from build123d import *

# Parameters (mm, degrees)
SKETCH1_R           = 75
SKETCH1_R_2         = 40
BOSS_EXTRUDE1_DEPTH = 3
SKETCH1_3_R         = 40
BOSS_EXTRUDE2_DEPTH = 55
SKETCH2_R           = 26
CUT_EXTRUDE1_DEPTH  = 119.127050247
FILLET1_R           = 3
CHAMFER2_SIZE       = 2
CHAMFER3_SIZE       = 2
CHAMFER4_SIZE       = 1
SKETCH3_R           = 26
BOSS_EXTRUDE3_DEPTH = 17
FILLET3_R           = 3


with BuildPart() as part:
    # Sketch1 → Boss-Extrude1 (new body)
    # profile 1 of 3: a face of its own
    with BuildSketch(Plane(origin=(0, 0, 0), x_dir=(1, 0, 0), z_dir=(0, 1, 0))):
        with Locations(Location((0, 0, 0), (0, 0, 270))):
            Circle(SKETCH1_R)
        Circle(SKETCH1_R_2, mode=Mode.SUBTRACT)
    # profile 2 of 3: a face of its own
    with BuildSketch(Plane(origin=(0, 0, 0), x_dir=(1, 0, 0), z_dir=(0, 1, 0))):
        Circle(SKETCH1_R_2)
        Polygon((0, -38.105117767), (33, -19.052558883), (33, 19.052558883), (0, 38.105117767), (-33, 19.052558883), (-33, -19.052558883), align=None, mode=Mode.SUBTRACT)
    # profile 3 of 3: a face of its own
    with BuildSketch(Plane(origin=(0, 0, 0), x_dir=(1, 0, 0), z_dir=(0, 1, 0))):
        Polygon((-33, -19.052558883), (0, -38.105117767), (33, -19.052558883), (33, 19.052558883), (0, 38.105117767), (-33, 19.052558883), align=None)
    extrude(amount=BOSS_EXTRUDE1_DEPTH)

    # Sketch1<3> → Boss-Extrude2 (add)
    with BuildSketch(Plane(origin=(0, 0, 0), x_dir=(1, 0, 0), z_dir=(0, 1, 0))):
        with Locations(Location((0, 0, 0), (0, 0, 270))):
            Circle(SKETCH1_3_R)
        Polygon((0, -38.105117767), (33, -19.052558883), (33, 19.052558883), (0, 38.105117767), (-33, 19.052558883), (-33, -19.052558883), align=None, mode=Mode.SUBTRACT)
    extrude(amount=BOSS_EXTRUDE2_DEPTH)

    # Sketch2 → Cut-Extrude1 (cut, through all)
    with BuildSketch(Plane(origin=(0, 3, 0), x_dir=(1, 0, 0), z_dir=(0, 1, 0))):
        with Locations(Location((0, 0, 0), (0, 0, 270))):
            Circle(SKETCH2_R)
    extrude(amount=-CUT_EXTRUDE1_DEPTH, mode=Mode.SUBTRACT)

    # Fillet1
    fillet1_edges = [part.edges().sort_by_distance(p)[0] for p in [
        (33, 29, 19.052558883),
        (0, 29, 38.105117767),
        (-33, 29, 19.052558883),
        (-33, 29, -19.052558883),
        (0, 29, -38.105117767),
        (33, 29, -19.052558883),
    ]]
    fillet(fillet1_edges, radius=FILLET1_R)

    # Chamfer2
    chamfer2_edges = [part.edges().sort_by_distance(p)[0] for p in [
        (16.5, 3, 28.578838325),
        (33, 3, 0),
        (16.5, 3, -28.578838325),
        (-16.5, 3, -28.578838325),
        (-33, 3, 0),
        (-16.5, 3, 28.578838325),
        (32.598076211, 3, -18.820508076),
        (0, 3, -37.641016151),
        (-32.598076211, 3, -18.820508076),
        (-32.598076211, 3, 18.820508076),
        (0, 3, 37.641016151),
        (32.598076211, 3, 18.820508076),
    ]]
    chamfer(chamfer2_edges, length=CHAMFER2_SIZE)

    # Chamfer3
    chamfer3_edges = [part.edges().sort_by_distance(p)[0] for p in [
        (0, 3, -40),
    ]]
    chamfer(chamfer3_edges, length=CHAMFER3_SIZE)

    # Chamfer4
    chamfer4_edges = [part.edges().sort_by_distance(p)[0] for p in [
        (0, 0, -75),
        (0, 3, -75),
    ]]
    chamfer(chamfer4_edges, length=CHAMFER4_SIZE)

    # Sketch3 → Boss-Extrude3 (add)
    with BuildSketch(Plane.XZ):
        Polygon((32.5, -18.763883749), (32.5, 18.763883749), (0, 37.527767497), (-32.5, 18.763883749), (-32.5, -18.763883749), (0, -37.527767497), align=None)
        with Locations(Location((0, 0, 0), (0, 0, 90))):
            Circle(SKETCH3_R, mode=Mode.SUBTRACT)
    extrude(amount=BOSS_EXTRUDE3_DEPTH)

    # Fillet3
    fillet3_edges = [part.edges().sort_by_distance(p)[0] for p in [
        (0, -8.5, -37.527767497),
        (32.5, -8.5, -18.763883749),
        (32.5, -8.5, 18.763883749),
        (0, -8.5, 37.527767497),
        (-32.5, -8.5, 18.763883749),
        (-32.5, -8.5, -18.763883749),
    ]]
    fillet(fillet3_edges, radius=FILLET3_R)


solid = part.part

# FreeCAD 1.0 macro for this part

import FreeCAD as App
import Part
import Sketcher
Q = App.Units.Quantity


def edges_at(feature, points):
    """Names of the edges that pass closest to the given points."""
    edges = feature.Shape.Edges
    near = lambda p: min(range(len(edges)), key=lambda i: edges[i].distToShape(Part.Vertex(*p))[0])
    return sorted({f"Edge{near(p) + 1}" for p in points})

doc = App.newDocument("Part")
params = doc.addObject("Spreadsheet::Sheet", "Params")
for row, (alias, value) in enumerate([
    ("sketch1_diameter", "150 mm"),
    ("pad1_length", "3 mm"),
    ("sketch2_diameter", "80 mm"),
    ("pad2_length", "55 mm"),
    ("sketch3_diameter", "52 mm"),
    ("fillet_radius", "3 mm"),
    ("chamfer_size", "2 mm"),
    ("chamfer2_size", "2 mm"),
    ("chamfer3_size", "1 mm"),
    ("sketch4_diameter", "52 mm"),
    ("pad3_length", "17 mm"),
    ("fillet2_radius", "3 mm"),
], start=1):
    params.set(f"A{row}", alias)
    params.set(f"B{row}", "=" + value)
    params.setAlias(f"B{row}", alias)

body = doc.addObject("PartDesign::Body", "Body")

# Sketch on XZ plane
sketch1 = doc.addObject("Sketcher::SketchObject", "Sketch")
body.addObject(sketch1)
sketch1.AttachmentSupport = (doc.XZ_Plane, [""])
sketch1.MapMode = "FlatFace"
sketch1.addGeometry(Part.Circle(App.Vector(0, 0, 0), App.Vector(0, 0, 1), 75), False)
sketch1.addConstraint([
    Sketcher.Constraint("Coincident", 0, 3, -1, 1),
    Sketcher.Constraint("Diameter", 0, Q("150 mm")),
])
sketch1.setExpression("Constraints[1]", "Params.sketch1_diameter")
pad1 = doc.addObject("PartDesign::Pad", "Pad")
body.addObject(pad1)
pad1.Profile = sketch1
pad1.setExpression("Length", "Params.pad1_length")
pad1.Reversed = True

# Sketch on XZ plane
sketch2 = doc.addObject("Sketcher::SketchObject", "Sketch001")
body.addObject(sketch2)
sketch2.AttachmentSupport = (doc.XZ_Plane, [""])
sketch2.MapMode = "FlatFace"
sketch2.addGeometry([
    Part.Circle(App.Vector(0, 0, 0), App.Vector(0, 0, 1), 40),  # 0
    Part.LineSegment(App.Vector(33, 19, 0), App.Vector(0, 38, 0)),  # 1
    Part.LineSegment(App.Vector(0, 38, 0), App.Vector(-33, 19, 0)),  # 2
    Part.LineSegment(App.Vector(-33, 19, 0), App.Vector(-33, -19, 0)),  # 3
    Part.LineSegment(App.Vector(-33, -19, 0), App.Vector(0, -38, 0)),  # 4
    Part.LineSegment(App.Vector(0, -38, 0), App.Vector(33, -19, 0)),  # 5
    Part.LineSegment(App.Vector(33, -19, 0), App.Vector(33, 19, 0)),  # 6
], False)
sketch2.addConstraint([
    Sketcher.Constraint("Coincident", 1, 2, 2, 1),
    Sketcher.Constraint("Coincident", 2, 2, 3, 1),
    Sketcher.Constraint("Coincident", 3, 2, 4, 1),
    Sketcher.Constraint("Coincident", 4, 2, 5, 1),
    Sketcher.Constraint("Coincident", 5, 2, 6, 1),
    Sketcher.Constraint("Coincident", 6, 2, 1, 1),
    Sketcher.Constraint("Vertical", 3),
    Sketcher.Constraint("Vertical", 6),
    Sketcher.Constraint("Coincident", 0, 3, -1, 1),
    Sketcher.Constraint("Symmetric", 1, 2, 4, 2, -1, 1),
    Sketcher.Constraint("Symmetric", 2, 2, 5, 2, -1, 1),
    Sketcher.Constraint("PointOnObject", 1, 2, -2),
    Sketcher.Constraint("Parallel", 1, 4),
    Sketcher.Constraint("Horizontal", 3, 2, 5, 2),
    Sketcher.Constraint("Diameter", 0, Q("80 mm")),
    Sketcher.Constraint("Angle", 1, Q("150 deg")),
    Sketcher.Constraint("DistanceX", 2, 2, -1, 1, Q("33 mm")),
    Sketcher.Constraint("DistanceY", 3, 2, 3, 1, Q("38.105118 mm")),
])
sketch2.setExpression("Constraints[14]", "Params.sketch2_diameter")
pad2 = doc.addObject("PartDesign::Pad", "Pad001")
body.addObject(pad2)
pad2.Profile = sketch2
pad2.setExpression("Length", "Params.pad2_length")
pad2.Reversed = True

# Sketch on XZ plane
sketch3 = doc.addObject("Sketcher::SketchObject", "Sketch002")
body.addObject(sketch3)
sketch3.AttachmentSupport = (doc.XZ_Plane, [""])
sketch3.MapMode = "FlatFace"
sketch3.AttachmentOffset = App.Placement(App.Vector(0, 0, -3), App.Rotation())
sketch3.addGeometry(Part.Circle(App.Vector(0, 0, 0), App.Vector(0, 0, 1), 26), False)
sketch3.addConstraint([
    Sketcher.Constraint("Coincident", 0, 3, -1, 1),
    Sketcher.Constraint("Diameter", 0, Q("52 mm")),
])
sketch3.setExpression("Constraints[1]", "Params.sketch3_diameter")
pocket1 = doc.addObject("PartDesign::Pocket", "Pocket")
body.addObject(pocket1)
pocket1.Profile = sketch3
pocket1.Type = "ThroughAll"
pocket1.Reversed = True
doc.recompute()

fillet = doc.addObject("PartDesign::Fillet", "Fillet")
body.addObject(fillet)
fillet.Base = (pocket1, edges_at(pocket1, [
    (33, 29, 19.053),
    (0, 29, 38.105),
    (-33, 29, 19.053),
    (-33, 29, -19.053),
    (0, 29, -38.105),
    (33, 29, -19.053),
]))
fillet.setExpression("Radius", "Params.fillet_radius")
doc.recompute()

chamfer = doc.addObject("PartDesign::Chamfer", "Chamfer")
body.addObject(chamfer)
chamfer.Base = (fillet, edges_at(fillet, [
    (16.5, 3, 28.579),
    (33, 3, 0),
    (16.5, 3, -28.579),
    (-16.5, 3, -28.579),
    (-33, 3, 0),
    (-16.5, 3, 28.579),
    (32.598, 3, -18.821),
    (0, 3, -37.641),
    (-32.598, 3, -18.821),
    (-32.598, 3, 18.821),
    (0, 3, 37.641),
    (32.598, 3, 18.821),
]))
chamfer.setExpression("Size", "Params.chamfer_size")
doc.recompute()

chamfer2 = doc.addObject("PartDesign::Chamfer", "Chamfer001")
body.addObject(chamfer2)
chamfer2.Base = (chamfer, edges_at(chamfer, [(0, 3, -40)]))
chamfer2.setExpression("Size", "Params.chamfer2_size")
doc.recompute()

chamfer3 = doc.addObject("PartDesign::Chamfer", "Chamfer002")
body.addObject(chamfer3)
chamfer3.Base = (chamfer2, edges_at(chamfer2, [(0, 0, -75), (0, 3, -75)]))
chamfer3.setExpression("Size", "Params.chamfer3_size")

# Sketch on XZ plane
sketch4 = doc.addObject("Sketcher::SketchObject", "Sketch003")
body.addObject(sketch4)
sketch4.AttachmentSupport = (doc.XZ_Plane, [""])
sketch4.MapMode = "FlatFace"
sketch4.addGeometry([
    Part.LineSegment(App.Vector(32, -19, 0), App.Vector(32, 19, 0)),  # 0
    Part.LineSegment(App.Vector(32, 19, 0), App.Vector(0, 38, 0)),  # 1
    Part.LineSegment(App.Vector(0, 38, 0), App.Vector(-32, 19, 0)),  # 2
    Part.LineSegment(App.Vector(-32, 19, 0), App.Vector(-32, -19, 0)),  # 3
    Part.LineSegment(App.Vector(-32, -19, 0), App.Vector(0, -38, 0)),  # 4
    Part.LineSegment(App.Vector(0, -38, 0), App.Vector(32, -19, 0)),  # 5
    Part.Circle(App.Vector(0, 0, 0), App.Vector(0, 0, 1), 26),  # 6
], False)
sketch4.addConstraint([
    Sketcher.Constraint("Coincident", 0, 2, 1, 1),
    Sketcher.Constraint("Coincident", 1, 2, 2, 1),
    Sketcher.Constraint("Coincident", 2, 2, 3, 1),
    Sketcher.Constraint("Coincident", 3, 2, 4, 1),
    Sketcher.Constraint("Coincident", 4, 2, 5, 1),
    Sketcher.Constraint("Coincident", 5, 2, 0, 1),
    Sketcher.Constraint("Vertical", 0),
    Sketcher.Constraint("Vertical", 3),
    Sketcher.Constraint("Coincident", 6, 3, -1, 1),
    Sketcher.Constraint("Symmetric", 0, 2, 3, 2, -1, 1),
    Sketcher.Constraint("Symmetric", 1, 2, 4, 2, -1, 1),
    Sketcher.Constraint("PointOnObject", 1, 2, -2),
    Sketcher.Constraint("Parallel", 2, 5),
    Sketcher.Constraint("Horizontal", 0, 2, 2, 2),
    Sketcher.Constraint("Diameter", 6, Q("52 mm")),
    Sketcher.Constraint("Angle", 1, Q("150 deg")),
    Sketcher.Constraint("DistanceX", 2, 2, 0, 2, Q("65 mm")),
    Sketcher.Constraint("DistanceY", 0, 1, 0, 2, Q("37.527767 mm")),
])
sketch4.setExpression("Constraints[14]", "Params.sketch4_diameter")
pad3 = doc.addObject("PartDesign::Pad", "Pad002")
body.addObject(pad3)
pad3.Profile = sketch4
pad3.setExpression("Length", "Params.pad3_length")
doc.recompute()

fillet2 = doc.addObject("PartDesign::Fillet", "Fillet001")
body.addObject(fillet2)
fillet2.Base = (pad3, edges_at(pad3, [
    (0, -8.5, -37.528),
    (32.5, -8.5, -18.764),
    (32.5, -8.5, 18.764),
    (0, -8.5, 37.528),
    (-32.5, -8.5, 18.764),
    (-32.5, -8.5, -18.764),
]))
fillet2.setExpression("Radius", "Params.fillet2_radius")

doc.recompute()
